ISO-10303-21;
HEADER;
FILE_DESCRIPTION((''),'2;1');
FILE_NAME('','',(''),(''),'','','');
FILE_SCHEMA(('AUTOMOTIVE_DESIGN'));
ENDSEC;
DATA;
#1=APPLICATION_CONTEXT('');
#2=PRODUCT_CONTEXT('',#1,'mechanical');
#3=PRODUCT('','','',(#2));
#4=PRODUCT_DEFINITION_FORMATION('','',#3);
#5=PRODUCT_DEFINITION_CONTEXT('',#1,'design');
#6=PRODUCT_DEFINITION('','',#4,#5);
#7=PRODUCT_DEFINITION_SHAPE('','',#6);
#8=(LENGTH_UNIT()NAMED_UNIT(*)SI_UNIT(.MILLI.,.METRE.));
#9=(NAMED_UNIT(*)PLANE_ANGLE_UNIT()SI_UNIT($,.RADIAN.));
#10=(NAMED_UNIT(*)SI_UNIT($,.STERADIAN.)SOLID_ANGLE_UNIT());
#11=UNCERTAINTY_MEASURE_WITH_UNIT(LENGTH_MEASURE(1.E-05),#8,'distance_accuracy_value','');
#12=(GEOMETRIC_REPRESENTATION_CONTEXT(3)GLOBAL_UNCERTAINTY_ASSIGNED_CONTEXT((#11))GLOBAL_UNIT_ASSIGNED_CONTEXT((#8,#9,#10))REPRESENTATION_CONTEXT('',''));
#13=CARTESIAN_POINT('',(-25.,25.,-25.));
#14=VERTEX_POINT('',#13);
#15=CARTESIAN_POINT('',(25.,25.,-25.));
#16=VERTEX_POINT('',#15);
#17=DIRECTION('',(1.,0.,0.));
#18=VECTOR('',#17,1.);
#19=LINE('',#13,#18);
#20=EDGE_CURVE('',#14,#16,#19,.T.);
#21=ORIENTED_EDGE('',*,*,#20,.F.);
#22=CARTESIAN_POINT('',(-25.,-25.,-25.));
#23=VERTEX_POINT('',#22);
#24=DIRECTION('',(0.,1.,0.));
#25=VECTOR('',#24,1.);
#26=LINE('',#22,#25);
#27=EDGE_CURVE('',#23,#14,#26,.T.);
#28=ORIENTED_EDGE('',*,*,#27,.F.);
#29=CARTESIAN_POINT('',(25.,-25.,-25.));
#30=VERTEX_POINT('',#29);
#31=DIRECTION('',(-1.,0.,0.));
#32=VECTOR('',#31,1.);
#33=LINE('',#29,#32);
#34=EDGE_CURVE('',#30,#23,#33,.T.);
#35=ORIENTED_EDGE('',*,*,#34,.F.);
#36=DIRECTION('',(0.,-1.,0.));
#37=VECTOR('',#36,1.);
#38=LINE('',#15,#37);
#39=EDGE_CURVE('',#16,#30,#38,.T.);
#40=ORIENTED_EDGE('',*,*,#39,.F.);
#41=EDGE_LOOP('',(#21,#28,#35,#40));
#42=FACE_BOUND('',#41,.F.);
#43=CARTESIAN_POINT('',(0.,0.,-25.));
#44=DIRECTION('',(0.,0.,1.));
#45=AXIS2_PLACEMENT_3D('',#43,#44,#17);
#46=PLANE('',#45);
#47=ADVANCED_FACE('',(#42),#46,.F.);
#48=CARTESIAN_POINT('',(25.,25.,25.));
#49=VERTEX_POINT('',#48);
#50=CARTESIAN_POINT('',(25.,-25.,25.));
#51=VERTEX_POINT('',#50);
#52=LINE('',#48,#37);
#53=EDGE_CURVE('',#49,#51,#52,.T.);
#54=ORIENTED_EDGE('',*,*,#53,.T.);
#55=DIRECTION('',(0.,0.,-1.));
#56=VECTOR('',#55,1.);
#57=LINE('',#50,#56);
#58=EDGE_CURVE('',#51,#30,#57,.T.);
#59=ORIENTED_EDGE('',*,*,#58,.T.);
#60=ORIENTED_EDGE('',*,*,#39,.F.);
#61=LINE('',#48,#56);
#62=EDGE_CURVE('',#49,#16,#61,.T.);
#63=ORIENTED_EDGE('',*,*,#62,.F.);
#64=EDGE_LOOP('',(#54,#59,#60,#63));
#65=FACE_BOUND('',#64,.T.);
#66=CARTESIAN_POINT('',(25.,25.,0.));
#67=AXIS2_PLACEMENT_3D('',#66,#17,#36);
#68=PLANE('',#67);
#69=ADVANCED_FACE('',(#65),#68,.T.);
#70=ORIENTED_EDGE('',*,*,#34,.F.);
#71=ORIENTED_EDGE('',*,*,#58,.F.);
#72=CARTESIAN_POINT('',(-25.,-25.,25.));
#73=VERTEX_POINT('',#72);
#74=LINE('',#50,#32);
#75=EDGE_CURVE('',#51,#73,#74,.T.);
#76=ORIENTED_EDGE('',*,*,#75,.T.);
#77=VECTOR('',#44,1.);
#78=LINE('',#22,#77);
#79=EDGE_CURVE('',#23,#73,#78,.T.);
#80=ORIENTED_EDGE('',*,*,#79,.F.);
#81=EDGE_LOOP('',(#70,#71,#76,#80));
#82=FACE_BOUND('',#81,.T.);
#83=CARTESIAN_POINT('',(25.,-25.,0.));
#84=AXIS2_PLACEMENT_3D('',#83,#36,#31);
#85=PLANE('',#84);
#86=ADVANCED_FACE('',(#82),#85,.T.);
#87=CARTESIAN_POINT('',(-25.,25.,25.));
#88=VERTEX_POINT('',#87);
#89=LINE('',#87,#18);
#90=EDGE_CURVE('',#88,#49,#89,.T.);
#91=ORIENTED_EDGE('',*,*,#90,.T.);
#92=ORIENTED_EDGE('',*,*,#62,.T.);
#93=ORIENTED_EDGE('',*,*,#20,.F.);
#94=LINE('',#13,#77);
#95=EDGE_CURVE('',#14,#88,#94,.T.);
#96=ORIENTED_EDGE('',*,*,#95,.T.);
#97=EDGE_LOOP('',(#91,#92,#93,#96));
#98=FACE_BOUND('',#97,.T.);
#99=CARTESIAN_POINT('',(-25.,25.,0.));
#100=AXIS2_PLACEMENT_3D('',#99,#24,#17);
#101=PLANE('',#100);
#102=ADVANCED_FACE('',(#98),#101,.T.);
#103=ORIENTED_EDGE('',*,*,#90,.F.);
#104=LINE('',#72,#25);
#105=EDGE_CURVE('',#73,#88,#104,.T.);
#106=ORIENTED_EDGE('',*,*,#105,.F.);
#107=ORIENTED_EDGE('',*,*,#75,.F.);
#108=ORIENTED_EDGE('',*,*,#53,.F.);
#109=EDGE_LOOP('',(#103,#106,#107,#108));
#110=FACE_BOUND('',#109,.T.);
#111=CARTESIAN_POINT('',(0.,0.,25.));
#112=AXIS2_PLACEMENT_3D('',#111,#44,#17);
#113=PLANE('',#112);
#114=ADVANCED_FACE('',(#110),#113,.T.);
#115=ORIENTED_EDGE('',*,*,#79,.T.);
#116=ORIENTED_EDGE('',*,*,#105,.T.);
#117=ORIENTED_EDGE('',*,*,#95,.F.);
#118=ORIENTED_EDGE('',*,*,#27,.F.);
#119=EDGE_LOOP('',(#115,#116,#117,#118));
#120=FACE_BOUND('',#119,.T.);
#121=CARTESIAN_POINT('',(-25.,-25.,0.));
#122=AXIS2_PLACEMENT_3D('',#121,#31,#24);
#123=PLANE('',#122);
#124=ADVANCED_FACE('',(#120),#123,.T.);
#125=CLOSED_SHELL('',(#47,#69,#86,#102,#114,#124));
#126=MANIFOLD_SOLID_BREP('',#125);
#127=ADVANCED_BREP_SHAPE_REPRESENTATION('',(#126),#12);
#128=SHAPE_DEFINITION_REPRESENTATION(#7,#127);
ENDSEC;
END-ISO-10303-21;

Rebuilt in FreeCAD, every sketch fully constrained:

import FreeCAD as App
import Part
import Sketcher

V = App.Vector


def add_polygon(sketch, points):
    """Adds a closed chain of lines whose ends are joined by coincident constraints."""
    first, n = sketch.GeometryCount, len(points)
    for a, b in zip(points, points[1:] + points[:1]):
        sketch.addGeometry(Part.LineSegment(App.Vector(*a, 0), App.Vector(*b, 0)), False)
    for i in range(n):
        sketch.addConstraint(Sketcher.Constraint("Coincident", first + i, 2, first + (i + 1) % n, 1))

doc = App.newDocument("Part")
body = doc.addObject("PartDesign::Body", "Body")

# Sketch on XY plane
sketch1 = body.newObject("Sketcher::SketchObject", "Sketch")
sketch1.AttachmentSupport = (doc.getObject("XY_Plane"), [""])
sketch1.MapMode = "FlatFace"
add_polygon(sketch1, [(25, 25), (-25, 25), (-25, -25), (25, -25)])  # lines 0-3
sketch1.addConstraint(Sketcher.Constraint("Horizontal", 0))
sketch1.addConstraint(Sketcher.Constraint("Vertical", 1))
sketch1.addConstraint(Sketcher.Constraint("Horizontal", 2))
sketch1.addConstraint(Sketcher.Constraint("Vertical", 3))
sketch1.addConstraint(Sketcher.Constraint("Symmetric", 0, 2, 2, 2, -1, 1))
sketch1.addConstraint(Sketcher.Constraint("Equal", 2, 1))
sketch1.addConstraint(Sketcher.Constraint("DistanceX", 0, 2, 0, 1, 50.0))
pad1 = body.newObject("PartDesign::Pad", "Pad")
pad1.Profile = sketch1
pad1.Length = 50
pad1.Midplane = True

doc.recompute()
